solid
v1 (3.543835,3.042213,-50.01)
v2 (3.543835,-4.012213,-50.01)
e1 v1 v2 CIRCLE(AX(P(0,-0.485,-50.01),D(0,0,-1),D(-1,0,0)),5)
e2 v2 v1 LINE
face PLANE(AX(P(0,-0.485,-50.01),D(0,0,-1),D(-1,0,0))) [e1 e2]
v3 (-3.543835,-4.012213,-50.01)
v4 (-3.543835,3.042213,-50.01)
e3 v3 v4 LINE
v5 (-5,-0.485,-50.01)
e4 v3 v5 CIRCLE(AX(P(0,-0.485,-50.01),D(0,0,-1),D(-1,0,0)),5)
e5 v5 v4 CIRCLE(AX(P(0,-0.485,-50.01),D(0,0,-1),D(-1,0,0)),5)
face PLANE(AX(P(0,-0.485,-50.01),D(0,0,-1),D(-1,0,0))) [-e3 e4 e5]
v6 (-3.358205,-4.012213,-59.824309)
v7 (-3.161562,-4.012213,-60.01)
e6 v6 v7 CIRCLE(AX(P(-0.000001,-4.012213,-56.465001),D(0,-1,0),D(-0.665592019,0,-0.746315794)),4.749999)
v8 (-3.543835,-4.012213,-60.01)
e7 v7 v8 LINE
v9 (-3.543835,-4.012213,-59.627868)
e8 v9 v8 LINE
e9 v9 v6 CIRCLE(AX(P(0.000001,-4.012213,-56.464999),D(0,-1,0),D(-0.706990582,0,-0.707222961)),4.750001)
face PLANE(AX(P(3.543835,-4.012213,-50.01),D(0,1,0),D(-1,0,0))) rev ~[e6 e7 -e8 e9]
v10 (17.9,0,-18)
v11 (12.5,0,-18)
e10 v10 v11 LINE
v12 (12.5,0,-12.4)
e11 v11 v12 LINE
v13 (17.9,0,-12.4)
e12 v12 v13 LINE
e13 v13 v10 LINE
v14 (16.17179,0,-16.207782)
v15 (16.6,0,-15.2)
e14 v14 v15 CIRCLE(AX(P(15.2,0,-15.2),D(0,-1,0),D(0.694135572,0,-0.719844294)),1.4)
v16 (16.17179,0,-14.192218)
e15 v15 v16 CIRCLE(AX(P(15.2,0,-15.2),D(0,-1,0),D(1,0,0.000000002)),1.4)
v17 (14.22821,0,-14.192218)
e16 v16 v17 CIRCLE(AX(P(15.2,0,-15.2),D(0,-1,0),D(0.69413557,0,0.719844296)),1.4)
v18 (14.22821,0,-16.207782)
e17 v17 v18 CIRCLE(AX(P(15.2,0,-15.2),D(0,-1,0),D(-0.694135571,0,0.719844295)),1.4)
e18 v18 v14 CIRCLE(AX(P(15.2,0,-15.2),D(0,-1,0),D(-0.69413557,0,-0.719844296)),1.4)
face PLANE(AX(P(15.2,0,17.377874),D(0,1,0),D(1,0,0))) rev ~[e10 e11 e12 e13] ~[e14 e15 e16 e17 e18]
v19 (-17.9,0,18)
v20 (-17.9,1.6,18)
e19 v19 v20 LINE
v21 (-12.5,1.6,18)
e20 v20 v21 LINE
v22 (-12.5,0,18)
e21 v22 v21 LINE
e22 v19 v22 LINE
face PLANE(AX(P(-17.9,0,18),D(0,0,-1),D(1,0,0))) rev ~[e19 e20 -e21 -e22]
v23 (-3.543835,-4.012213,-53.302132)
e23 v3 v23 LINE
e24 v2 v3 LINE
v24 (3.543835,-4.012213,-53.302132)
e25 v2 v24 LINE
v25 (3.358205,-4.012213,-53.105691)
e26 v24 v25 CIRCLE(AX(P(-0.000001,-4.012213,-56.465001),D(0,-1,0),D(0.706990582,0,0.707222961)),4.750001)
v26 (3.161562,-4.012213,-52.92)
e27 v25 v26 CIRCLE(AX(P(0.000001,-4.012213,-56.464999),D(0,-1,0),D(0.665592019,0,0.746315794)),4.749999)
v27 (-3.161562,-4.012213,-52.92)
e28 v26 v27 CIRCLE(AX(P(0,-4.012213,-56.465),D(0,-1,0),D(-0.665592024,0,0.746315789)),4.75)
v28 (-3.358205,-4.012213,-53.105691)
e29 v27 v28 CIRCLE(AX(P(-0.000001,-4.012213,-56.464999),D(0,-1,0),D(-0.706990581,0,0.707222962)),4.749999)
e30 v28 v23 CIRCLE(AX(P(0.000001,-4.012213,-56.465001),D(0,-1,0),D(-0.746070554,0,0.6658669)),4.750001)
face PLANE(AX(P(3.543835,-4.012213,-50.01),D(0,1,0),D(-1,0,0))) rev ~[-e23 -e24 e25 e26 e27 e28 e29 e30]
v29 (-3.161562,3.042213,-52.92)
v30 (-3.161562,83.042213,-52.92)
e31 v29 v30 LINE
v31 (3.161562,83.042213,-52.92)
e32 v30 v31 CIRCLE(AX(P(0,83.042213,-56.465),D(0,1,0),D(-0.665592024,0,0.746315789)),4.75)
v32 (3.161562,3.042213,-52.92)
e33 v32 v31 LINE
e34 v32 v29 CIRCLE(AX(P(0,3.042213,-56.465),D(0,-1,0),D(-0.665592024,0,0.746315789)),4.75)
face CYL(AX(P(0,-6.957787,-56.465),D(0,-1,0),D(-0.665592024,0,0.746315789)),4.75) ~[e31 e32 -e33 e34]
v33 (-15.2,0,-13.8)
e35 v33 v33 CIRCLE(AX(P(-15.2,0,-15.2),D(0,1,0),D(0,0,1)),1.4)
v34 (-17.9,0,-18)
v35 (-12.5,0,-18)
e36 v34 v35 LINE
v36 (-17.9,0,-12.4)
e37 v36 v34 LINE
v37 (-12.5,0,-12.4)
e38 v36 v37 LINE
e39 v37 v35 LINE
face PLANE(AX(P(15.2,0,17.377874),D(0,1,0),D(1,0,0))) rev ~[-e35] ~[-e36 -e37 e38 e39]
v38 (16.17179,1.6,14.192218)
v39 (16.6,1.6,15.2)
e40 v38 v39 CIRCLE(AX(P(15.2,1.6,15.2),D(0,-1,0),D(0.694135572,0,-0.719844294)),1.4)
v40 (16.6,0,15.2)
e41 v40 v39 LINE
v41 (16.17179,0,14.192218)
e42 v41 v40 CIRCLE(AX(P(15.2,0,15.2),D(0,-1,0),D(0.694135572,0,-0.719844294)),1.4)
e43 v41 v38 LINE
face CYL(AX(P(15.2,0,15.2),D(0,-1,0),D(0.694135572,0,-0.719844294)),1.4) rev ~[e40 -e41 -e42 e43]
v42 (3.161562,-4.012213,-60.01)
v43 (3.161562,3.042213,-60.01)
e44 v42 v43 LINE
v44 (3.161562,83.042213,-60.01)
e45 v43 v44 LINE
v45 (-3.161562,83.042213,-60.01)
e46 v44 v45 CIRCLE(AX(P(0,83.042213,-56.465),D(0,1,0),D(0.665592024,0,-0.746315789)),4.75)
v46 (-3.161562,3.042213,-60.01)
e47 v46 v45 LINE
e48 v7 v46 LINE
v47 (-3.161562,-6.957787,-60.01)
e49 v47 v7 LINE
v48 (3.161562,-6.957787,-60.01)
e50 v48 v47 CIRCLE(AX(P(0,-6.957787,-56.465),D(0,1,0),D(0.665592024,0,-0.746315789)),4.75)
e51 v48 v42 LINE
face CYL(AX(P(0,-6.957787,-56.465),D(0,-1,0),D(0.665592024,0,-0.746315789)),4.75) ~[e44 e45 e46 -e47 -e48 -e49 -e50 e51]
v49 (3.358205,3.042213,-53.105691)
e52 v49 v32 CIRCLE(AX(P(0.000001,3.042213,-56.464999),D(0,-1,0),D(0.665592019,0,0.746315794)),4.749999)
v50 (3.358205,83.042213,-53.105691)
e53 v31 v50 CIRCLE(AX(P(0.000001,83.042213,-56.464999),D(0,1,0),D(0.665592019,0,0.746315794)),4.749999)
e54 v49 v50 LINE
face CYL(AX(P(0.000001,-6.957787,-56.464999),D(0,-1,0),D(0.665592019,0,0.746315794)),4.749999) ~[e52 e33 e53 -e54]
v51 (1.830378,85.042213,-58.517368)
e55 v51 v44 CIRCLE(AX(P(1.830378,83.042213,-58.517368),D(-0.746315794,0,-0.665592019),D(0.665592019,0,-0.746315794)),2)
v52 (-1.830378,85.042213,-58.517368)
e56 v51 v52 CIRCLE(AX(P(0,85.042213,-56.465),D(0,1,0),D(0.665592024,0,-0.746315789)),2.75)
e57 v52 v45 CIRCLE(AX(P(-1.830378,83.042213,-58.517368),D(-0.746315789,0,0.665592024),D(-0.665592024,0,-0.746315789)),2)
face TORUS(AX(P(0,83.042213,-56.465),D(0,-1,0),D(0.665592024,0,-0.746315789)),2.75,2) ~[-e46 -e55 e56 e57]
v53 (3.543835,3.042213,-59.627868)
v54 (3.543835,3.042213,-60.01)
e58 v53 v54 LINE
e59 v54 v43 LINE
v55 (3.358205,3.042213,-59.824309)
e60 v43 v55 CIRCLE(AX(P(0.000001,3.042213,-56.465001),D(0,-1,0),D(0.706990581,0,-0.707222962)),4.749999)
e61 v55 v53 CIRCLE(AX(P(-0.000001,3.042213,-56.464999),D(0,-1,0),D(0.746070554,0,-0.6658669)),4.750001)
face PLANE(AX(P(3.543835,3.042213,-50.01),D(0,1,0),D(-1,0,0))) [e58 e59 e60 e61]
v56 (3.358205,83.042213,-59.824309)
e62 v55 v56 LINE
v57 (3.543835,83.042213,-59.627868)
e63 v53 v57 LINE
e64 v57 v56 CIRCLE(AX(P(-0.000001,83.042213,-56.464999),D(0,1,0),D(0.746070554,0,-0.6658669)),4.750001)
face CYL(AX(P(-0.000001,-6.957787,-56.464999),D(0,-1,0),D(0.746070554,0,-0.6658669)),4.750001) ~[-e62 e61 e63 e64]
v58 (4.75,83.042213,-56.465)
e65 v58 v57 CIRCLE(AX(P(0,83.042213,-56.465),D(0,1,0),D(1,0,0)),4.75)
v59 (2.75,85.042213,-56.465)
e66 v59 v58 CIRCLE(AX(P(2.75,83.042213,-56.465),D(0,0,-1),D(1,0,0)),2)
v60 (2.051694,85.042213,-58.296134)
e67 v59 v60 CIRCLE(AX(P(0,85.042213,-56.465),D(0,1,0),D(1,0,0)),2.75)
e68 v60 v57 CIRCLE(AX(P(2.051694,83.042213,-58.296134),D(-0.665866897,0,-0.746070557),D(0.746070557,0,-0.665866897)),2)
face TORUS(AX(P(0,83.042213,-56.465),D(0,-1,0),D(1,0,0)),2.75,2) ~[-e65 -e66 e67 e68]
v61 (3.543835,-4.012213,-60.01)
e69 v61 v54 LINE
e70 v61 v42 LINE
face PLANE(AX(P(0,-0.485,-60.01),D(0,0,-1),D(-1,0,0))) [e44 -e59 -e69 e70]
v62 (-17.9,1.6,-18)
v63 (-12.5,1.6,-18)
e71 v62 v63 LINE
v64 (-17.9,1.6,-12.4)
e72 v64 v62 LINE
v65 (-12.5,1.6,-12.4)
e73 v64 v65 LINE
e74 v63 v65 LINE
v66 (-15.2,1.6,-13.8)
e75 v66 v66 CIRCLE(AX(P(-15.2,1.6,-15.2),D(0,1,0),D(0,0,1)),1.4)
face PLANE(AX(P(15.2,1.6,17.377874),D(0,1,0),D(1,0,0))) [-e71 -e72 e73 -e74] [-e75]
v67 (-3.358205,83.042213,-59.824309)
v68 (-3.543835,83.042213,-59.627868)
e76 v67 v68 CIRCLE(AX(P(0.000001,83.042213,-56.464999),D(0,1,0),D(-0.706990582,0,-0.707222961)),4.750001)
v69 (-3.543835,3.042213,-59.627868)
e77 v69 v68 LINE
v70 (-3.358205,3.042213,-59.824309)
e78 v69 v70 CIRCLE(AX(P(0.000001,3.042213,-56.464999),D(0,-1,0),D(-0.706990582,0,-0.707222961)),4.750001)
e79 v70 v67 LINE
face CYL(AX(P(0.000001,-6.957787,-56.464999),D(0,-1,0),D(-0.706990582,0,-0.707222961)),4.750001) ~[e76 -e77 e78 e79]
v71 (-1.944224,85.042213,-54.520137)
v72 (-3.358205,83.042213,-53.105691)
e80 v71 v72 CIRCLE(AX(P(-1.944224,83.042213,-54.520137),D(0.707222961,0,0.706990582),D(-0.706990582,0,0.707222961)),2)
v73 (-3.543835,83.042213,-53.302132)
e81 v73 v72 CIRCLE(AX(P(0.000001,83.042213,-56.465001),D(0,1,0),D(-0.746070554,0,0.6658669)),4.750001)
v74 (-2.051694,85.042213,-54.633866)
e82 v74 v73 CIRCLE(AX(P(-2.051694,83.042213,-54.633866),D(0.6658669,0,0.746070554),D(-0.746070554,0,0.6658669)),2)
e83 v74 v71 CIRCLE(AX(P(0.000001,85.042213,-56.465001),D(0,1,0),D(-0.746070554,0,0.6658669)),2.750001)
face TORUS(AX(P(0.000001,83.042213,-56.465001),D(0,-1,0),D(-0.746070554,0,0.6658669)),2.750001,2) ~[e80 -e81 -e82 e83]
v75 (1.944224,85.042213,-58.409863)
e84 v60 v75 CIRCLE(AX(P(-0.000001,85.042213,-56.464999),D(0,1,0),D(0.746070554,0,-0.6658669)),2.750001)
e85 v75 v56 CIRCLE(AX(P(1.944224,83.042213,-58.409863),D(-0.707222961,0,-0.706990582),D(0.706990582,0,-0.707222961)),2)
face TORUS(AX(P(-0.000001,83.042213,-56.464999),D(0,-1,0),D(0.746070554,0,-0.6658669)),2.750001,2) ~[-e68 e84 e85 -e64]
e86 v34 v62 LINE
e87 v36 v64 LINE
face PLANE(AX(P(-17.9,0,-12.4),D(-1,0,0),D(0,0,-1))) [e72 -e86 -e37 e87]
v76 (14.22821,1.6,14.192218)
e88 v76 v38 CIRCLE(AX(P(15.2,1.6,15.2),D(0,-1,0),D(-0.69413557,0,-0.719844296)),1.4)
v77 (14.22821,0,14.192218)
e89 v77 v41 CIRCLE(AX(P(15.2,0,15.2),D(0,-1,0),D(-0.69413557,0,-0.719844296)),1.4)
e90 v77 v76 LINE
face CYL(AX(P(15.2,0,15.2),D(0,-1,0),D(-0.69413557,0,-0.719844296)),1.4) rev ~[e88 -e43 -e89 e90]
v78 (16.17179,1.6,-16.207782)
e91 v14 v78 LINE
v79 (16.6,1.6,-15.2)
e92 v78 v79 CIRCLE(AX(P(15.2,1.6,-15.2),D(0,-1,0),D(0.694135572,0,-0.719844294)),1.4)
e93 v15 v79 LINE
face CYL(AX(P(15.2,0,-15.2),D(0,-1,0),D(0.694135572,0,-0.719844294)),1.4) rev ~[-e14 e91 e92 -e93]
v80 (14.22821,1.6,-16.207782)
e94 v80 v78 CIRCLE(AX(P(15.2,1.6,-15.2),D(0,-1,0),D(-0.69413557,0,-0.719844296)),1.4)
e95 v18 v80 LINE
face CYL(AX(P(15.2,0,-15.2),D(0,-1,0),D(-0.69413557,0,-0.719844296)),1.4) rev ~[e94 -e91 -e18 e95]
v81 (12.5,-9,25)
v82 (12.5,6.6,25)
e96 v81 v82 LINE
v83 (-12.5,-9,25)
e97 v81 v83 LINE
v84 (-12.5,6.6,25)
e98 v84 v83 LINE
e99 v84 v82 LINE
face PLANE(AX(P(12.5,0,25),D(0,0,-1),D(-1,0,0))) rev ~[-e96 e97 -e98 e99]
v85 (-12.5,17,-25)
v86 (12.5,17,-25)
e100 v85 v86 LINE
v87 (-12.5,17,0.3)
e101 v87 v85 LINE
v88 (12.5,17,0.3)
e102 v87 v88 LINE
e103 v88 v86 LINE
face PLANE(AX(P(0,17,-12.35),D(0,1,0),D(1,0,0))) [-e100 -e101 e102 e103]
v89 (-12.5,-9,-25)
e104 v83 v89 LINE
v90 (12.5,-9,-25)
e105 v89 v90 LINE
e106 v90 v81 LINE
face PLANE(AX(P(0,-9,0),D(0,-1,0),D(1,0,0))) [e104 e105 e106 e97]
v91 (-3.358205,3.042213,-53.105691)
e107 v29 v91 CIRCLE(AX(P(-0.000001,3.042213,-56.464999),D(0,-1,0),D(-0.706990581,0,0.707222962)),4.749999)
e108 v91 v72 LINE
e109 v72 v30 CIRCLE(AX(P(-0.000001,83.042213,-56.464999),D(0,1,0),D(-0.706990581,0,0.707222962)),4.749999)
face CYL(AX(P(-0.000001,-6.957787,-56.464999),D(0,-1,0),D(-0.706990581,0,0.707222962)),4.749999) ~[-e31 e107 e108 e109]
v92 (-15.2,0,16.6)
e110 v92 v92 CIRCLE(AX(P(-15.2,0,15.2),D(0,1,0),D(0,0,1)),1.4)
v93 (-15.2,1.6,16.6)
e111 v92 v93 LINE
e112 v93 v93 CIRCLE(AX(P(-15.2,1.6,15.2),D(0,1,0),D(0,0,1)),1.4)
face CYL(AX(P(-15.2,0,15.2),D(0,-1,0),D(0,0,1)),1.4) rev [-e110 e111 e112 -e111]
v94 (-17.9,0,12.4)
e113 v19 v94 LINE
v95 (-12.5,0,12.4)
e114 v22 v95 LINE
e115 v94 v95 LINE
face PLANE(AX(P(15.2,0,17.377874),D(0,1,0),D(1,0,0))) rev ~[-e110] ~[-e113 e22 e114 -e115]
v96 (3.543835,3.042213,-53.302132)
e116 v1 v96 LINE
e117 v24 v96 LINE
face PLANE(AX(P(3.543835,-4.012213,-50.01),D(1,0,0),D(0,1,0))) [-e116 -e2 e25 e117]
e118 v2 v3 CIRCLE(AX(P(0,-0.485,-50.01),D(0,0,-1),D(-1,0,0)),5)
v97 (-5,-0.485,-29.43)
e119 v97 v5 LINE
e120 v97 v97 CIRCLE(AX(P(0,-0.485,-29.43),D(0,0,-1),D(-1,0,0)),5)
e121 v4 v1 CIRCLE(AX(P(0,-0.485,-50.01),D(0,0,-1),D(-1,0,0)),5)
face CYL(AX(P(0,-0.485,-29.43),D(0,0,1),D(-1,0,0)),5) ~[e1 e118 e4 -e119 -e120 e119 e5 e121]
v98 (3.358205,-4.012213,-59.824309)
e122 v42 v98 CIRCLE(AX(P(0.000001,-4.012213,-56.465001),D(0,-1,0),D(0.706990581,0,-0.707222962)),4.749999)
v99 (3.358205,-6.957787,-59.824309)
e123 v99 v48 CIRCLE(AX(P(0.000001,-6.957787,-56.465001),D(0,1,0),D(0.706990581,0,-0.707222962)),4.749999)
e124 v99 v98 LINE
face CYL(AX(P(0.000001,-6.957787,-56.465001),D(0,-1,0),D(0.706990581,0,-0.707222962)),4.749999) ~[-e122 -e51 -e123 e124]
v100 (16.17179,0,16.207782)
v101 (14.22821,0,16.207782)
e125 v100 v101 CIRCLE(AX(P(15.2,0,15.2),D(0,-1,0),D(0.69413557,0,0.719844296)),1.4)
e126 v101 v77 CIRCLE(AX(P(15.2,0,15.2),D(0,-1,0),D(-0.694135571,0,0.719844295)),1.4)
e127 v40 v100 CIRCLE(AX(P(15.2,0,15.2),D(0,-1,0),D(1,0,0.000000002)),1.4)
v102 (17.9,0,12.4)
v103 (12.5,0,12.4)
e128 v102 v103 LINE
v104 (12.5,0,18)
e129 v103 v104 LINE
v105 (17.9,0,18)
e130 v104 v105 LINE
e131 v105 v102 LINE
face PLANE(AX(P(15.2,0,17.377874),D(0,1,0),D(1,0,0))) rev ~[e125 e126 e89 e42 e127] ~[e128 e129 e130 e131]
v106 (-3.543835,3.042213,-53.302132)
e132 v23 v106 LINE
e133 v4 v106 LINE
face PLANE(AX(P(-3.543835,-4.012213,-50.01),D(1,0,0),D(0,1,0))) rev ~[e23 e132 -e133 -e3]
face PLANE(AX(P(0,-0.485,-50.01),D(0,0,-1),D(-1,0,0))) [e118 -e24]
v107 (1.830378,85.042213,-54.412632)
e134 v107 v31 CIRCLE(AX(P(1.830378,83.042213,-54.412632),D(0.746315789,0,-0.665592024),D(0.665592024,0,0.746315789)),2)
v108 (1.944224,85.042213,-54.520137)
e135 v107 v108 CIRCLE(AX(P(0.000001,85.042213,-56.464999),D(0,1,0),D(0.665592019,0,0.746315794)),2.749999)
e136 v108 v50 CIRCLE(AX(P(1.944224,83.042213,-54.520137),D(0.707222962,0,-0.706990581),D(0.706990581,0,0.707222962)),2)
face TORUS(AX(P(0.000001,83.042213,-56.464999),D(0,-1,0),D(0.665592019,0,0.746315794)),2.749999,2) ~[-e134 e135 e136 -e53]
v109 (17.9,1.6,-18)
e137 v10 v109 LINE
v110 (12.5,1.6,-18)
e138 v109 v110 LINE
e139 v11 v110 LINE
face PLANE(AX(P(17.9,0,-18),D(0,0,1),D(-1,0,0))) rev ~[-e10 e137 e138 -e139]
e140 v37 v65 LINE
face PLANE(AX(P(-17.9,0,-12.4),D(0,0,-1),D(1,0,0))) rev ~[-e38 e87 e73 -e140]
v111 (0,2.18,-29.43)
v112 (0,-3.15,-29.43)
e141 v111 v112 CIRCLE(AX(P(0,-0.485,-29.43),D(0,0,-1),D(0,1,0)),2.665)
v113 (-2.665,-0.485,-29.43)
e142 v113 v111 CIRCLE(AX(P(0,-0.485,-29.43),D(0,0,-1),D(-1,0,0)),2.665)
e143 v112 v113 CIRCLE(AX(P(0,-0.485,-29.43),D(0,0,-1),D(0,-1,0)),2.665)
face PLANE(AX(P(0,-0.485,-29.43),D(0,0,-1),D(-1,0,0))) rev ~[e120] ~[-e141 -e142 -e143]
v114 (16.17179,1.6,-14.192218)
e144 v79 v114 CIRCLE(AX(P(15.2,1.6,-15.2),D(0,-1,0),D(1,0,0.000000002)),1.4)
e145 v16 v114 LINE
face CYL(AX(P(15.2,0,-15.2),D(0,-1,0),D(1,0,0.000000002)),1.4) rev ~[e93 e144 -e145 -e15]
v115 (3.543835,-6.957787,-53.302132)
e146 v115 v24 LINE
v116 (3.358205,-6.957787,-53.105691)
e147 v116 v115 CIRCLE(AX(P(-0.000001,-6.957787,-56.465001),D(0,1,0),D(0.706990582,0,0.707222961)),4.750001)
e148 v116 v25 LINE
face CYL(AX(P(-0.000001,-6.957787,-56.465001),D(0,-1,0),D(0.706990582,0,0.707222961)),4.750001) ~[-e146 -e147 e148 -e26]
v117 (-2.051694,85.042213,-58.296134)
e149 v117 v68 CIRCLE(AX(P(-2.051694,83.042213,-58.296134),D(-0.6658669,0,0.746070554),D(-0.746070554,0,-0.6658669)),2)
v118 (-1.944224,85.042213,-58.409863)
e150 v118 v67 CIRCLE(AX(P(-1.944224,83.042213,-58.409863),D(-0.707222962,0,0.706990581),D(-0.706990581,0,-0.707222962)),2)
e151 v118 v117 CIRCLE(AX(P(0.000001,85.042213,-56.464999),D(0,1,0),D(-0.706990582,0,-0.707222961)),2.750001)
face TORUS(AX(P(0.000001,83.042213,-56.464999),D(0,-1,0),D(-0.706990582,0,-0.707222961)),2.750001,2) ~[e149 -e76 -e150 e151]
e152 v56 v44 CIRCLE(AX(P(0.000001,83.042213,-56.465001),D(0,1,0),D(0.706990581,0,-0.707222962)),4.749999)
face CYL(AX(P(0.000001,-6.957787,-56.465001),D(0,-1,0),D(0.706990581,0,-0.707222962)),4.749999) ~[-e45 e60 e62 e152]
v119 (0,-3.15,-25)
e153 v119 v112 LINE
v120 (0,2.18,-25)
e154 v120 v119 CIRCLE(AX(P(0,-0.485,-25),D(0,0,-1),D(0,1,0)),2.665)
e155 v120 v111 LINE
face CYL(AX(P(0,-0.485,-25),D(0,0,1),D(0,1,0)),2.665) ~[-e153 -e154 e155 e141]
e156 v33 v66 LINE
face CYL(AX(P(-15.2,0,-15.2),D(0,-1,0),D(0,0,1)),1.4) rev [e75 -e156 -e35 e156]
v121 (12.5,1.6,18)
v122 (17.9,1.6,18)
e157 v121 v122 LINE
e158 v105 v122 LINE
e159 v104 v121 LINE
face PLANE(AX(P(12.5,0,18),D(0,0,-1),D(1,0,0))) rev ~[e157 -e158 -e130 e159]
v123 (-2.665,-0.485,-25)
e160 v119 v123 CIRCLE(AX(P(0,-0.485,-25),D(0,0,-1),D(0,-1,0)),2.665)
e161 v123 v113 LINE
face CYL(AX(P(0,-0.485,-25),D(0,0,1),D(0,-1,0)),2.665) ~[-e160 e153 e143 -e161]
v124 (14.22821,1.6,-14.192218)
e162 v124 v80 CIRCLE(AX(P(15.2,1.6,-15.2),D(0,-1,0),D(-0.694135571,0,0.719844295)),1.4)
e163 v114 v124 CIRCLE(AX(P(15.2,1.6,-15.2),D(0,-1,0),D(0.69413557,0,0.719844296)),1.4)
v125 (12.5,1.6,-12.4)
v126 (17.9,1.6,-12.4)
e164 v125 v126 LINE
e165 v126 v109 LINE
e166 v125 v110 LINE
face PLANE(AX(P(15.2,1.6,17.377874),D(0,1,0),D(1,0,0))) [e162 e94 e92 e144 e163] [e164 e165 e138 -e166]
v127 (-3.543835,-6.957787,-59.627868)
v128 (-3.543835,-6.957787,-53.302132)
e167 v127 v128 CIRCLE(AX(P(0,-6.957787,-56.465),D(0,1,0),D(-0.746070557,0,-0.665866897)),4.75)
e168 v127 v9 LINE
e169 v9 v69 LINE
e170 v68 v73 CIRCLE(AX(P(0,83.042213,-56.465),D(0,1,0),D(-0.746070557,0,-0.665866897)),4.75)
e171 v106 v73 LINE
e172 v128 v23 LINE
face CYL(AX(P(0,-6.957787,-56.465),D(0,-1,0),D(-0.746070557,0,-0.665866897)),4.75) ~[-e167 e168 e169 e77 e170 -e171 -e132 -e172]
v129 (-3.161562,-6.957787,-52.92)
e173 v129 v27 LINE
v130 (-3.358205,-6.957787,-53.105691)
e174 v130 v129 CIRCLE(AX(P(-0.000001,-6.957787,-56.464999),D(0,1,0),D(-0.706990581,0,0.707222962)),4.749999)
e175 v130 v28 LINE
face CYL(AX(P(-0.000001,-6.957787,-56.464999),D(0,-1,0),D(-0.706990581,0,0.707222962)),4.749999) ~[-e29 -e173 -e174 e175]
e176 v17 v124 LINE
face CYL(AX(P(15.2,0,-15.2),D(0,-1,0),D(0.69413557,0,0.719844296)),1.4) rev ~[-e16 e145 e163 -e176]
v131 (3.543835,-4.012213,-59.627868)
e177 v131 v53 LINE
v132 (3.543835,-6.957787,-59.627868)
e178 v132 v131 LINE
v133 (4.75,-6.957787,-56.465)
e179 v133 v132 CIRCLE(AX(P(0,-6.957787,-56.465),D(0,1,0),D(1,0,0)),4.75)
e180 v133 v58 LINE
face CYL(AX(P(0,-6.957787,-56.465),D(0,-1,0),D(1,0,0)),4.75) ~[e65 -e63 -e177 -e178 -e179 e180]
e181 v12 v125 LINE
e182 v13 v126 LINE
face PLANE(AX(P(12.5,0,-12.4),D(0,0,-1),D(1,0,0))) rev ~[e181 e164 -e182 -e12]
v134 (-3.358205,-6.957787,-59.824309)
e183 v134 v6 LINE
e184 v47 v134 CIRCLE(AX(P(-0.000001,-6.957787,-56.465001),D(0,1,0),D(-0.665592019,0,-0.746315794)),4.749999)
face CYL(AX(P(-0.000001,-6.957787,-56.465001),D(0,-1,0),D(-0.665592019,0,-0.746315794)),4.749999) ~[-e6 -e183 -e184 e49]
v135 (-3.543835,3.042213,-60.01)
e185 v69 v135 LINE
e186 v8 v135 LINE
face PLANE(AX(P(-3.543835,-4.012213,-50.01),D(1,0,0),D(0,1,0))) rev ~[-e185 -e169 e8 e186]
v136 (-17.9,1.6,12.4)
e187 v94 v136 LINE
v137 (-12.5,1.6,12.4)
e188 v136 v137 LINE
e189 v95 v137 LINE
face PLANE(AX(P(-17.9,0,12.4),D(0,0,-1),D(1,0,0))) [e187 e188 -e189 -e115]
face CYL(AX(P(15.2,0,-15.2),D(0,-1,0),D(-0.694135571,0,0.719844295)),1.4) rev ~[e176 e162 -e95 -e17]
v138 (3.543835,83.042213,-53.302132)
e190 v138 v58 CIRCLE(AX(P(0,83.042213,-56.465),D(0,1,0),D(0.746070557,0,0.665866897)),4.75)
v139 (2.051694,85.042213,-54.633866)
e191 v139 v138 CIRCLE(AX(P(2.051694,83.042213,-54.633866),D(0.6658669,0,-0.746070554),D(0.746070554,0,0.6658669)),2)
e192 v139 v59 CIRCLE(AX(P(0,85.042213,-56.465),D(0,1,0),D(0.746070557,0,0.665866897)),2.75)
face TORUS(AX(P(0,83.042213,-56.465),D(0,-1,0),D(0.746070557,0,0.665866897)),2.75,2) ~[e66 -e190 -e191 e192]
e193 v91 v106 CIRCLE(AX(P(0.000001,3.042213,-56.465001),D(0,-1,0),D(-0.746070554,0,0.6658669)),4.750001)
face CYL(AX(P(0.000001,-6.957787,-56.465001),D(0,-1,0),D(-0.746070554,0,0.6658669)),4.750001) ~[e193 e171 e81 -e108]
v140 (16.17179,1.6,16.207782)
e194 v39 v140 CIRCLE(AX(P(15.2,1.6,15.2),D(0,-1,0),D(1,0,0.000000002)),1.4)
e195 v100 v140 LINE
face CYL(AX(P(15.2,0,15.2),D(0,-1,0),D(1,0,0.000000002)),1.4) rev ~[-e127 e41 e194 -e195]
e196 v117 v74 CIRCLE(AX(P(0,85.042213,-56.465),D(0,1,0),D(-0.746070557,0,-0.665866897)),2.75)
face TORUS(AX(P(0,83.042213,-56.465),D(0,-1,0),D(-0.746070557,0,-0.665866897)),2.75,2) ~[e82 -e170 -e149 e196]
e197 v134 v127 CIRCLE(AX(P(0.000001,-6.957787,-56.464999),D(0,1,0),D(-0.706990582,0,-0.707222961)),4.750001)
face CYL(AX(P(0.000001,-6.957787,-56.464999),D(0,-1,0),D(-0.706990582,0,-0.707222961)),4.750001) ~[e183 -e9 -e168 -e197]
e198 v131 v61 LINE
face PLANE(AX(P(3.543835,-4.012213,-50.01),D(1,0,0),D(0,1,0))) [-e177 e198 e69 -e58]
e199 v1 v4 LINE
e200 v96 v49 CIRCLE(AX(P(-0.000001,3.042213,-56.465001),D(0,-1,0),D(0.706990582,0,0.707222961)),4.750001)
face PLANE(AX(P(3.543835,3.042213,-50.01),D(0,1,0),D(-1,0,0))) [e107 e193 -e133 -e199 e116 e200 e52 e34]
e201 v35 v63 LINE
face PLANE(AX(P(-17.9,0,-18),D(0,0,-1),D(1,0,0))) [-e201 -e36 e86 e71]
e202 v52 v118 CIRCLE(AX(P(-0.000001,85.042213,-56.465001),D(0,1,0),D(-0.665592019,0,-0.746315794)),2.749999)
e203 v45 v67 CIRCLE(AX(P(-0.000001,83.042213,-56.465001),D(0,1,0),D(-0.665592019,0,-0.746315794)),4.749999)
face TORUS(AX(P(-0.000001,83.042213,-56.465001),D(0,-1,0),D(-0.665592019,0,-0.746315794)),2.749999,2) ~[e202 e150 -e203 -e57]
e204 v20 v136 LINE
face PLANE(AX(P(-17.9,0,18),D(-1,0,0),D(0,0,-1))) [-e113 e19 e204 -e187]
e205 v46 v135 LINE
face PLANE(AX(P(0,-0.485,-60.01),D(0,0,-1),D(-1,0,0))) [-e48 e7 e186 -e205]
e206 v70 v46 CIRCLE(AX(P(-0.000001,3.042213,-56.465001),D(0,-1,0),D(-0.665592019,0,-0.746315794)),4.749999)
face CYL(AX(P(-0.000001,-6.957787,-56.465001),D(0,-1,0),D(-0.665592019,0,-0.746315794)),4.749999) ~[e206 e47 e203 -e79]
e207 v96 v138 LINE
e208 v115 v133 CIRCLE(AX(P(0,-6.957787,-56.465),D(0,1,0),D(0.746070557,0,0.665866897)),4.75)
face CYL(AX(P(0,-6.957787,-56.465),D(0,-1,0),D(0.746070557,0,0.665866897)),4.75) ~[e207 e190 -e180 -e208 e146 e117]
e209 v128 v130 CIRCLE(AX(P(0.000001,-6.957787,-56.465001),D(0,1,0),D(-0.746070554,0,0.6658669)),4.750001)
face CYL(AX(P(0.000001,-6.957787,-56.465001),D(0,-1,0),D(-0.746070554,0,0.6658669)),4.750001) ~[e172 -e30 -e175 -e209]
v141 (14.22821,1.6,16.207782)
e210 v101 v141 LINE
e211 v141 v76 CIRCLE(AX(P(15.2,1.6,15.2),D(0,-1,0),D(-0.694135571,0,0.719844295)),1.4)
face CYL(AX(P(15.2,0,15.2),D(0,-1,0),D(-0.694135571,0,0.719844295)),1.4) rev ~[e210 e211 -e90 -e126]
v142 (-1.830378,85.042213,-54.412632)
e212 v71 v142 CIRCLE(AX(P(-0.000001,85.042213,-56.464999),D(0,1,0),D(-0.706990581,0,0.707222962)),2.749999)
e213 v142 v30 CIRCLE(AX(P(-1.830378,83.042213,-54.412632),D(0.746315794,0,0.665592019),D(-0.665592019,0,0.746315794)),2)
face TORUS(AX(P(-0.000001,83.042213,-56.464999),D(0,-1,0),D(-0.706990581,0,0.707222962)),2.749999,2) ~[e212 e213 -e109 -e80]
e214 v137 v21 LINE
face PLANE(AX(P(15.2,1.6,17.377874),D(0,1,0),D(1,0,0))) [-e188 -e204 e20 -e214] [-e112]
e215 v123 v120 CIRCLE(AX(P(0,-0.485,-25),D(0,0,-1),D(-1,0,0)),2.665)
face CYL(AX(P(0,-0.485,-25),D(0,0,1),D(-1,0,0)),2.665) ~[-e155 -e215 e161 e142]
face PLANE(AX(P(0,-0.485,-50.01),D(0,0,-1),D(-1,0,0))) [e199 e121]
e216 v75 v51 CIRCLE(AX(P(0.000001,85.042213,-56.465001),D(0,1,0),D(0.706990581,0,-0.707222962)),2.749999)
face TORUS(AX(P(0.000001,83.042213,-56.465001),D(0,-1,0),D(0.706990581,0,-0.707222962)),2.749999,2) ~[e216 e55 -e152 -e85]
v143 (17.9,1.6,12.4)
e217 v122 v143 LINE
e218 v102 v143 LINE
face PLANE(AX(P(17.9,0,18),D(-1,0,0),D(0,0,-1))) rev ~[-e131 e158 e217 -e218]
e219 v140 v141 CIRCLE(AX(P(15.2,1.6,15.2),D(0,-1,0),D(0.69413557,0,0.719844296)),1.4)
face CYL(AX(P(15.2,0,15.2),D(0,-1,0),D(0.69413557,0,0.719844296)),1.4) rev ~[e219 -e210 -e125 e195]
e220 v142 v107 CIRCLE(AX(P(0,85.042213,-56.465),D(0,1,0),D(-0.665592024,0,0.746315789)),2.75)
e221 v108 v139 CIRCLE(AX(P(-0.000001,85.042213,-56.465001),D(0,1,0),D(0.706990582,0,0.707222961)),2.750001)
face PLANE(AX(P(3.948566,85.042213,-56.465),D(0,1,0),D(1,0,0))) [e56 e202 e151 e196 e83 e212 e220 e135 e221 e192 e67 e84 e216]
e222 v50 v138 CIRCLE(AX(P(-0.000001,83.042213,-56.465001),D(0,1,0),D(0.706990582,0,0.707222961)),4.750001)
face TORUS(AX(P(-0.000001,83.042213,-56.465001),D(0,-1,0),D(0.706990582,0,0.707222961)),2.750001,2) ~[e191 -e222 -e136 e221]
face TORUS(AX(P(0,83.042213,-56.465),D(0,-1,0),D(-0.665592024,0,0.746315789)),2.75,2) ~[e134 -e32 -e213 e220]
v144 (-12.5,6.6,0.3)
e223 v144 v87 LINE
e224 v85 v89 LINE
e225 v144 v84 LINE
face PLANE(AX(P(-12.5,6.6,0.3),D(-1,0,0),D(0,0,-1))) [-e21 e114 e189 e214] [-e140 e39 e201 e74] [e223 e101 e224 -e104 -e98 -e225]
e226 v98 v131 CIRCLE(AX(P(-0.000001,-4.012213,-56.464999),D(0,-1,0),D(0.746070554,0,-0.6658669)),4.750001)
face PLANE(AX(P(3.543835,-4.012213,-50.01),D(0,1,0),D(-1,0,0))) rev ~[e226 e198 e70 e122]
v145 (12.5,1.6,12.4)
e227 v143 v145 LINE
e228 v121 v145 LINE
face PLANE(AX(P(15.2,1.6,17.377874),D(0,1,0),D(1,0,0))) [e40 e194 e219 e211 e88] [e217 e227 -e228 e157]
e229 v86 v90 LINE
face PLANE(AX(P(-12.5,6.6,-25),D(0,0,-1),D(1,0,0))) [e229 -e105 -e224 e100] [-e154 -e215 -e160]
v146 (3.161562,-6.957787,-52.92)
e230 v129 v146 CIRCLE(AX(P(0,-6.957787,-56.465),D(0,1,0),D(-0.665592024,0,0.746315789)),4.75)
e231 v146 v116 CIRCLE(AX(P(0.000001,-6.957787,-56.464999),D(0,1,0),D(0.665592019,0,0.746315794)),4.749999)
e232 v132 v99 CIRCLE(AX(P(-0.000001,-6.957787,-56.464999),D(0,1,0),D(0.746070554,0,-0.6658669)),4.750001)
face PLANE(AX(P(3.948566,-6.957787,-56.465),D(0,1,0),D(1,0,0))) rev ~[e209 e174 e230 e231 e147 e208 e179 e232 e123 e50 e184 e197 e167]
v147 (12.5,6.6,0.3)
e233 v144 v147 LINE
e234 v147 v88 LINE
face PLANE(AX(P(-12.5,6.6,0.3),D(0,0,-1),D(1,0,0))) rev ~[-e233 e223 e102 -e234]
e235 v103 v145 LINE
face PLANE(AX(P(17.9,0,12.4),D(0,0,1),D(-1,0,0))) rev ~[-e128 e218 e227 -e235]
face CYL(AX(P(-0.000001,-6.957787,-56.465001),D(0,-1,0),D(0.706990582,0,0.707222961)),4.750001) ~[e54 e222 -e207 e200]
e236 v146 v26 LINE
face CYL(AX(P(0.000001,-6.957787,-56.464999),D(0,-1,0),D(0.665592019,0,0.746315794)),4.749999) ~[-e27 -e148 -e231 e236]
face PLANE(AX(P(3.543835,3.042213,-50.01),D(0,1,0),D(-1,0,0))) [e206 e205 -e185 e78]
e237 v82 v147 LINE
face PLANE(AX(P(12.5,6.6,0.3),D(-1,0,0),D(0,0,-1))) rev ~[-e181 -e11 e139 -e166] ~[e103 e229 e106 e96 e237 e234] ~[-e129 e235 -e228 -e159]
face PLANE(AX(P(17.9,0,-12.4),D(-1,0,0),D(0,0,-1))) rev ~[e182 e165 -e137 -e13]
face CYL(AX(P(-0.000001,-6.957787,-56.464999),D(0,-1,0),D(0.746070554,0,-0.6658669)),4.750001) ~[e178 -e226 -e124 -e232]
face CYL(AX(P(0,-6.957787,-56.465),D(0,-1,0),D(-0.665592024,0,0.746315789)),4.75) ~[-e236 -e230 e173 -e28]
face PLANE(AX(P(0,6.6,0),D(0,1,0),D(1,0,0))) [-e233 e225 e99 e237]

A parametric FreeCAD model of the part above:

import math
import FreeCAD as App
import Part
import Sketcher

V = App.Vector


def edges_at(feature, points):
    """Names of the edges that pass closest to the given points."""
    edges = feature.Shape.Edges
    near = lambda p: min(range(len(edges)), key=lambda i: edges[i].distToShape(Part.Vertex(*p))[0])
    return sorted({f"Edge{near(p) + 1}" for p in points})


def add_polygon(sketch, points):
    """Adds a closed chain of lines whose ends are joined by coincident constraints."""
    first, n = sketch.GeometryCount, len(points)
    for a, b in zip(points, points[1:] + points[:1]):
        sketch.addGeometry(Part.LineSegment(App.Vector(*a, 0), App.Vector(*b, 0)), False)
    for i in range(n):
        sketch.addConstraint(Sketcher.Constraint("Coincident", first + i, 2, first + (i + 1) % n, 1))

doc = App.newDocument("Part")
body = doc.addObject("PartDesign::Body", "Body")

# Sketch on XZ plane
sketch1 = body.newObject("Sketcher::SketchObject", "Sketch")
sketch1.AttachmentSupport = (doc.getObject("XZ_Plane"), [""])
sketch1.MapMode = "FlatFace"
add_polygon(sketch1, [(-12.5, -25), (-12.5, -18), (-17.9, -18), (-17.9, -12.4), (-12.5, -12.4), (-12.5, 12.4), (-17.9, 12.4), (-17.9, 18), (-12.5, 18), (-12.5, 25), (12.5, 25), (12.5, 18), (17.9, 18), (17.9, 12.4), (12.5, 12.4), (12.5, -12.4), (17.9, -12.4), (17.9, -18), (12.5, -18), (12.5, -25)])  # lines 0-19
sketch1.addGeometry(Part.Circle(V(-15.2, -15.2, 0), V(0, 0, 1), 1.4), False)  # 20
sketch1.addGeometry(Part.Circle(V(-15.2, 15.2, 0), V(0, 0, 1), 1.4), False)  # 21
sketch1.addGeometry(Part.ArcOfCircle(Part.Circle(V(15.2, 15.2, 0), V(0, 0, 1), 1.4), math.radians(134), math.radians(226)), False)  # 22
sketch1.addGeometry(Part.ArcOfCircle(Part.Circle(V(15.2, 15.2, 0), V(0, 0, 1), 1.4), math.radians(-134), math.radians(-46)), False)  # 23
sketch1.addGeometry(Part.ArcOfCircle(Part.Circle(V(15.2, 15.2, 0), V(0, 0, 1), 1.4), math.radians(-46), math.radians(0)), False)  # 24
sketch1.addGeometry(Part.ArcOfCircle(Part.Circle(V(15.2, 15.2, 0), V(0, 0, 1), 1.4), math.radians(0), math.radians(46)), False)  # 25
sketch1.addGeometry(Part.ArcOfCircle(Part.Circle(V(15.2, 15.2, 0), V(0, 0, 1), 1.4), math.radians(46), math.radians(134)), False)  # 26
sketch1.addGeometry(Part.ArcOfCircle(Part.Circle(V(15.2, -15.2, 0), V(0, 0, 1), 1.4), math.radians(134), math.radians(226)), False)  # 27
sketch1.addGeometry(Part.ArcOfCircle(Part.Circle(V(15.2, -15.2, 0), V(0, 0, 1), 1.4), math.radians(-134), math.radians(-46)), False)  # 28
sketch1.addGeometry(Part.ArcOfCircle(Part.Circle(V(15.2, -15.2, 0), V(0, 0, 1), 1.4), math.radians(-46), math.radians(0)), False)  # 29
sketch1.addGeometry(Part.ArcOfCircle(Part.Circle(V(15.2, -15.2, 0), V(0, 0, 1), 1.4), math.radians(0), math.radians(46)), False)  # 30
sketch1.addGeometry(Part.ArcOfCircle(Part.Circle(V(15.2, -15.2, 0), V(0, 0, 1), 1.4), math.radians(46), math.radians(134)), False)  # 31
sketch1.addConstraint(Sketcher.Constraint("Tangent", 22, 2, 23, 1))
sketch1.addConstraint(Sketcher.Constraint("Tangent", 23, 2, 24, 1))
sketch1.addConstraint(Sketcher.Constraint("Tangent", 24, 2, 25, 1))
sketch1.addConstraint(Sketcher.Constraint("Tangent", 25, 2, 26, 1))
sketch1.addConstraint(Sketcher.Constraint("Tangent", 26, 2, 22, 1))
sketch1.addConstraint(Sketcher.Constraint("Tangent", 27, 2, 28, 1))
sketch1.addConstraint(Sketcher.Constraint("Tangent", 28, 2, 29, 1))
sketch1.addConstraint(Sketcher.Constraint("Tangent", 29, 2, 30, 1))
sketch1.addConstraint(Sketcher.Constraint("Tangent", 30, 2, 31, 1))
sketch1.addConstraint(Sketcher.Constraint("Tangent", 31, 2, 27, 1))
sketch1.addConstraint(Sketcher.Constraint("Vertical", 0))
sketch1.addConstraint(Sketcher.Constraint("Horizontal", 1))
sketch1.addConstraint(Sketcher.Constraint("Vertical", 2))
sketch1.addConstraint(Sketcher.Constraint("Horizontal", 3))
sketch1.addConstraint(Sketcher.Constraint("Vertical", 4))
sketch1.addConstraint(Sketcher.Constraint("Horizontal", 5))
sketch1.addConstraint(Sketcher.Constraint("Vertical", 6))
sketch1.addConstraint(Sketcher.Constraint("Horizontal", 7))
sketch1.addConstraint(Sketcher.Constraint("Vertical", 8))
sketch1.addConstraint(Sketcher.Constraint("Horizontal", 9))
sketch1.addConstraint(Sketcher.Constraint("Vertical", 10))
sketch1.addConstraint(Sketcher.Constraint("Horizontal", 11))
sketch1.addConstraint(Sketcher.Constraint("Vertical", 12))
sketch1.addConstraint(Sketcher.Constraint("Horizontal", 13))
sketch1.addConstraint(Sketcher.Constraint("Vertical", 14))
sketch1.addConstraint(Sketcher.Constraint("Horizontal", 15))
sketch1.addConstraint(Sketcher.Constraint("Vertical", 16))
sketch1.addConstraint(Sketcher.Constraint("Horizontal", 17))
sketch1.addConstraint(Sketcher.Constraint("Vertical", 18))
sketch1.addConstraint(Sketcher.Constraint("Horizontal", 19))
sketch1.addConstraint(Sketcher.Constraint("Coincident", 24, 3, 22, 3))
sketch1.addConstraint(Sketcher.Constraint("Coincident", 29, 3, 27, 3))
sketch1.addConstraint(Sketcher.Constraint("Equal", 20, 21))
sketch1.addConstraint(Sketcher.Constraint("Equal", 21, 22))
sketch1.addConstraint(Sketcher.Constraint("Equal", 26, 27))
sketch1.addConstraint(Sketcher.Constraint("Symmetric", 20, 3, 22, 3, -1, 1))
sketch1.addConstraint(Sketcher.Constraint("Symmetric", 21, 3, 27, 3, -1, 1))
sketch1.addConstraint(Sketcher.Constraint("Symmetric", 0, 2, 10, 2, -1, 1))
sketch1.addConstraint(Sketcher.Constraint("Symmetric", 2, 2, 12, 2, -1, 1))
sketch1.addConstraint(Sketcher.Constraint("Symmetric", 4, 2, 14, 2, -1, 1))
sketch1.addConstraint(Sketcher.Constraint("Symmetric", 6, 2, 16, 2, -1, 1))
sketch1.addConstraint(Sketcher.Constraint("Symmetric", 8, 2, 18, 2, -1, 1))
sketch1.addConstraint(Sketcher.Constraint("Symmetric", 21, 3, 22, 3, -2))
sketch1.addConstraint(Sketcher.Constraint("Symmetric", 7, 2, 10, 2, -2))
sketch1.addConstraint(Sketcher.Constraint("Symmetric", 5, 2, 12, 2, -2))
sketch1.addConstraint(Sketcher.Constraint("Horizontal", 22, 2, 23, 2))
sketch1.addConstraint(Sketcher.Constraint("Horizontal", 26, 3, 24, 2))
sketch1.addConstraint(Sketcher.Constraint("Horizontal", 25, 2, 26, 2))
sketch1.addConstraint(Sketcher.Constraint("Horizontal", 27, 2, 28, 2))
sketch1.addConstraint(Sketcher.Constraint("Horizontal", 31, 3, 29, 2))
sketch1.addConstraint(Sketcher.Constraint("Horizontal", 30, 2, 31, 2))
sketch1.addConstraint(Sketcher.Constraint("Vertical", 0, 2, 3, 2))
sketch1.addConstraint(Sketcher.Constraint("Vertical", 23, 2, 25, 2))
sketch1.addConstraint(Sketcher.Constraint("Vertical", 26, 2, 27, 2))
sketch1.addConstraint(Sketcher.Constraint("Vertical", 28, 2, 30, 2))
sketch1.addConstraint(Sketcher.Constraint("Diameter", 20, 2.8))
sketch1.addConstraint(Sketcher.Constraint("DistanceX", 9, 1, 9, 2, 25.0))
sketch1.addConstraint(Sketcher.Constraint("DistanceY", 0, 1, 0, 2, 7.0))
sketch1.addConstraint(Sketcher.Constraint("DistanceX", 1, 2, 1, 1, 5.4))
sketch1.addConstraint(Sketcher.Constraint("DistanceY", 2, 1, 2, 2, 5.6))
sketch1.addConstraint(Sketcher.Constraint("DistanceY", 4, 1, 4, 2, 24.8))
sketch1.addConstraint(Sketcher.Constraint("DistanceX", 20, 3, -1, 1, 15.2))
sketch1.addConstraint(Sketcher.Constraint("DistanceY", 20, 3, -1, 1, 15.2))
sketch1.addConstraint(Sketcher.Constraint("DistanceX", -1, 1, 22, 2, 14.22821))
pad1 = body.newObject("PartDesign::Pad", "Pad")
pad1.Profile = sketch1
pad1.Length = 1.6
pad1.Reversed = True

# Sketch on XZ plane
sketch2 = body.newObject("Sketcher::SketchObject", "Sketch001")
sketch2.AttachmentSupport = (doc.getObject("XZ_Plane"), [""])
sketch2.MapMode = "FlatFace"
sketch2.AttachmentOffset = App.Placement(V(0, 0, -1.6), App.Rotation())
add_polygon(sketch2, [(12, -25), (-12, -25), (-12, 25), (12, 25)])  # lines 0-3
sketch2.addConstraint(Sketcher.Constraint("Horizontal", 0))
sketch2.addConstraint(Sketcher.Constraint("Vertical", 1))
sketch2.addConstraint(Sketcher.Constraint("Horizontal", 2))
sketch2.addConstraint(Sketcher.Constraint("Vertical", 3))
sketch2.addConstraint(Sketcher.Constraint("Symmetric", 0, 2, 2, 2, -1, 1))
sketch2.addConstraint(Sketcher.Constraint("DistanceX", 0, 2, 0, 1, 25.0))
sketch2.addConstraint(Sketcher.Constraint("DistanceY", 1, 1, 1, 2, 50.0))
pad2 = body.newObject("PartDesign::Pad", "Pad001")
pad2.Profile = sketch2
pad2.Length = 5
pad2.Reversed = True

# Sketch on XZ plane
sketch3 = body.newObject("Sketcher::SketchObject", "Sketch002")
sketch3.AttachmentSupport = (doc.getObject("XZ_Plane"), [""])
sketch3.MapMode = "FlatFace"
add_polygon(sketch3, [(12, 25), (-12, 25), (-12, -25), (12, -25)])  # lines 0-3
sketch3.addConstraint(Sketcher.Constraint("Horizontal", 0))
sketch3.addConstraint(Sketcher.Constraint("Vertical", 1))
sketch3.addConstraint(Sketcher.Constraint("Horizontal", 2))
sketch3.addConstraint(Sketcher.Constraint("Vertical", 3))
sketch3.addConstraint(Sketcher.Constraint("Symmetric", 0, 2, 2, 2, -1, 1))
sketch3.addConstraint(Sketcher.Constraint("DistanceX", 0, 2, 0, 1, 25.0))
sketch3.addConstraint(Sketcher.Constraint("DistanceY", 1, 2, 1, 1, 50.0))
pad3 = body.newObject("PartDesign::Pad", "Pad002")
pad3.Profile = sketch3
pad3.Length = 9

# Sketch on XZ plane
sketch4 = body.newObject("Sketcher::SketchObject", "Sketch003")
sketch4.AttachmentSupport = (doc.getObject("XZ_Plane"), [""])
sketch4.MapMode = "FlatFace"
sketch4.AttachmentOffset = App.Placement(V(0, 0, -6.6), App.Rotation())
add_polygon(sketch4, [(-12, -25), (-12, 0), (12, 0), (12, -25)])  # lines 0-3
sketch4.addConstraint(Sketcher.Constraint("Vertical", 0))
sketch4.addConstraint(Sketcher.Constraint("Horizontal", 1))
sketch4.addConstraint(Sketcher.Constraint("Vertical", 2))
sketch4.addConstraint(Sketcher.Constraint("Horizontal", 3))
sketch4.addConstraint(Sketcher.Constraint("DistanceX", 1, 1, 1, 2, 25.0))
sketch4.addConstraint(Sketcher.Constraint("DistanceY", 0, 1, 0, 2, 25.3))
sketch4.addConstraint(Sketcher.Constraint("DistanceY", 2, 2, -1, 1, 25.0))
sketch4.addConstraint(Sketcher.Constraint("DistanceX", 0, 2, -1, 1, 12.5))
pad4 = body.newObject("PartDesign::Pad", "Pad003")
pad4.Profile = sketch4
pad4.Length = 10.4
pad4.Reversed = True

# Sketch on XY plane
sketch5 = body.newObject("Sketcher::SketchObject", "Sketch004")
sketch5.AttachmentSupport = (doc.getObject("XY_Plane"), [""])
sketch5.MapMode = "FlatFace"
sketch5.AttachmentOffset = App.Placement(V(0, 0, -25), App.Rotation())
sketch5.addGeometry(Part.ArcOfCircle(Part.Circle(V(0, -0.5, 0), V(0, 0, 1), 2.7), math.radians(-90), math.radians(90)), False)
sketch5.addGeometry(Part.ArcOfCircle(Part.Circle(V(0, -0.5, 0), V(0, 0, 1), 2.7), math.radians(180), math.radians(270)), False)
sketch5.addGeometry(Part.ArcOfCircle(Part.Circle(V(0, -0.5, 0), V(0, 0, 1), 2.7), math.radians(90), math.radians(180)), False)
sketch5.addConstraint(Sketcher.Constraint("Tangent", 0, 1, 1, 2))
sketch5.addConstraint(Sketcher.Constraint("Tangent", 1, 1, 2, 2))
sketch5.addConstraint(Sketcher.Constraint("Tangent", 2, 1, 0, 2))
sketch5.addConstraint(Sketcher.Constraint("PointOnObject", 0, 3, -2))
sketch5.addConstraint(Sketcher.Constraint("PointOnObject", 0, 1, -2))
sketch5.addConstraint(Sketcher.Constraint("PointOnObject", 2, 1, -2))
sketch5.addConstraint(Sketcher.Constraint("Horizontal", 2, 3, 1, 1))
sketch5.addConstraint(Sketcher.Constraint("Radius", 0, 2.665))
sketch5.addConstraint(Sketcher.Constraint("DistanceY", 0, 1, -1, 1, 3.15))
pad5 = body.newObject("PartDesign::Pad", "Pad004")
pad5.Profile = sketch5
pad5.Length = 4.43
pad5.Reversed = True

# Sketch on XY plane
sketch6 = body.newObject("Sketcher::SketchObject", "Sketch005")
sketch6.AttachmentSupport = (doc.getObject("XY_Plane"), [""])
sketch6.MapMode = "FlatFace"
sketch6.AttachmentOffset = App.Placement(V(0, 0, -29.43), App.Rotation())
sketch6.addGeometry(Part.Circle(V(0, 0, 0), V(0, 0, 1), 5), False)
sketch6.addConstraint(Sketcher.Constraint("PointOnObject", 0, 3, -2))
sketch6.addConstraint(Sketcher.Constraint("Diameter", 0, 10.0))
sketch6.addConstraint(Sketcher.Constraint("DistanceY", 0, 3, -1, 1, 0.485))
pad6 = body.newObject("PartDesign::Pad", "Pad005")
pad6.Profile = sketch6
pad6.Length = 20.58
pad6.Reversed = True

# Sketch on XY plane
sketch7 = body.newObject("Sketcher::SketchObject", "Sketch006")
sketch7.AttachmentSupport = (doc.getObject("XY_Plane"), [""])
sketch7.MapMode = "FlatFace"
sketch7.AttachmentOffset = App.Placement(V(0, 0, -50.01), App.Rotation())
add_polygon(sketch7, [(4, 3), (4, -4), (-4, -4), (-4, 3)])  # lines 0-3
sketch7.addConstraint(Sketcher.Constraint("Vertical", 0))
sketch7.addConstraint(Sketcher.Constraint("Horizontal", 1))
sketch7.addConstraint(Sketcher.Constraint("Vertical", 2))
sketch7.addConstraint(Sketcher.Constraint("Horizontal", 3))
sketch7.addConstraint(Sketcher.Constraint("DistanceX", 1, 2, 1, 1, 7.08767))
sketch7.addConstraint(Sketcher.Constraint("DistanceY", 0, 2, 0, 1, 7.054426))
sketch7.addConstraint(Sketcher.Constraint("DistanceX", -1, 1, 0, 2, 3.543835))
sketch7.addConstraint(Sketcher.Constraint("DistanceY", 0, 2, -1, 1, 4.012213))
pad7 = body.newObject("PartDesign::Pad", "Pad006")
pad7.Profile = sketch7
pad7.Length = 10
pad7.Reversed = True

# Sketch on XZ plane
sketch8 = body.newObject("Sketcher::SketchObject", "Sketch007")
sketch8.AttachmentSupport = (doc.getObject("XZ_Plane"), [""])
sketch8.MapMode = "FlatFace"
sketch8.AttachmentOffset = App.Placement(V(0, 0, -3.042213), App.Rotation())
sketch8.addGeometry(Part.ArcOfCircle(Part.Circle(V(0, -56.47, 0), V(0, 0, 1), 4.75), math.radians(0), math.radians(42)), False)
sketch8.addGeometry(Part.ArcOfCircle(Part.Circle(V(0, -56.47, 0), V(0, 0, 1), 4.75), math.radians(-42), math.radians(0)), False)
sketch8.addGeometry(Part.ArcOfCircle(Part.Circle(V(0, -56.46, 0), V(0, 0, 1), 4.75), math.radians(-45.01), math.radians(-41.75)), False)
sketch8.addGeometry(Part.ArcOfCircle(Part.Circle(V(0, -56.47, 0), V(0, 0, 1), 4.75), math.radians(-48.27), math.radians(-45.01)), False)
sketch8.addGeometry(Part.ArcOfCircle(Part.Circle(V(0, -56.47, 0), V(0, 0, 1), 4.75), math.radians(-132), math.radians(-48)), False)
sketch8.addGeometry(Part.ArcOfCircle(Part.Circle(V(0, -56.47, 0), V(0, 0, 1), 4.75), math.radians(-134.99), math.radians(-131.73)), False)
sketch8.addGeometry(Part.ArcOfCircle(Part.Circle(V(0, -56.46, 0), V(0, 0, 1), 4.75), math.radians(-138.25), math.radians(-134.99)), False)
sketch8.addGeometry(Part.ArcOfCircle(Part.Circle(V(0, -56.47, 0), V(0, 0, 1), 4.75), math.radians(138), math.radians(222)), False)
sketch8.addGeometry(Part.ArcOfCircle(Part.Circle(V(0, -56.47, 0), V(0, 0, 1), 4.75), math.radians(134.99), math.radians(138.25)), False)
sketch8.addGeometry(Part.ArcOfCircle(Part.Circle(V(0, -56.46, 0), V(0, 0, 1), 4.75), math.radians(131.73), math.radians(134.99)), False)
sketch8.addGeometry(Part.ArcOfCircle(Part.Circle(V(0, -56.47, 0), V(0, 0, 1), 4.75), math.radians(48), math.radians(132)), False)
sketch8.addGeometry(Part.ArcOfCircle(Part.Circle(V(0, -56.46, 0), V(0, 0, 1), 4.75), math.radians(45.01), math.radians(48.27)), False)
sketch8.addGeometry(Part.ArcOfCircle(Part.Circle(V(0, -56.47, 0), V(0, 0, 1), 4.75), math.radians(41.75), math.radians(45.01)), False)
sketch8.addConstraint(Sketcher.Constraint("Tangent", 0, 1, 1, 2))
sketch8.addConstraint(Sketcher.Constraint("Tangent", 1, 1, 2, 2))
sketch8.addConstraint(Sketcher.Constraint("Tangent", 2, 1, 3, 2))
sketch8.addConstraint(Sketcher.Constraint("Tangent", 3, 1, 4, 2))
sketch8.addConstraint(Sketcher.Constraint("Tangent", 4, 1, 5, 2))
sketch8.addConstraint(Sketcher.Constraint("Tangent", 5, 1, 6, 2))
sketch8.addConstraint(Sketcher.Constraint("Tangent", 6, 1, 7, 2))
sketch8.addConstraint(Sketcher.Constraint("Tangent", 7, 1, 8, 2))
sketch8.addConstraint(Sketcher.Constraint("Tangent", 8, 1, 9, 2))
sketch8.addConstraint(Sketcher.Constraint("Tangent", 9, 1, 10, 2))
sketch8.addConstraint(Sketcher.Constraint("Tangent", 10, 1, 11, 2))
sketch8.addConstraint(Sketcher.Constraint("Tangent", 11, 1, 12, 2))
sketch8.addConstraint(Sketcher.Constraint("Tangent", 12, 1, 0, 2))
sketch8.addConstraint(Sketcher.Constraint("Coincident", 2, 3, 0, 3))
sketch8.addConstraint(Sketcher.Constraint("Coincident", 4, 3, 0, 3))
sketch8.addConstraint(Sketcher.Constraint("Coincident", 6, 3, 0, 3))
sketch8.addConstraint(Sketcher.Constraint("Coincident", 8, 3, 0, 3))
sketch8.addConstraint(Sketcher.Constraint("Coincident", 11, 3, 0, 3))
sketch8.addConstraint(Sketcher.Constraint("Symmetric", 3, 1, 4, 1, -2))
sketch8.addConstraint(Sketcher.Constraint("Horizontal", 12, 3, 0, 1))
sketch8.addConstraint(Sketcher.Constraint("Horizontal", 2, 1, 5, 1))
sketch8.addConstraint(Sketcher.Constraint("Horizontal", 1, 1, 6, 1))
sketch8.addConstraint(Sketcher.Constraint("Horizontal", 9, 1, 10, 1))
sketch8.addConstraint(Sketcher.Constraint("Horizontal", 8, 1, 11, 1))
sketch8.addConstraint(Sketcher.Constraint("Horizontal", 7, 1, 12, 1))
sketch8.addConstraint(Sketcher.Constraint("Vertical", 6, 1, 7, 1))
sketch8.addConstraint(Sketcher.Constraint("Vertical", 5, 1, 8, 1))
sketch8.addConstraint(Sketcher.Constraint("Vertical", 4, 1, 9, 1))
sketch8.addConstraint(Sketcher.Constraint("Radius", 0, 4.75))
sketch8.addConstraint(Sketcher.Constraint("DistanceY", 3, 1, -1, 1, 60.01))
sketch8.addConstraint(Sketcher.Constraint("DistanceY", 9, 1, -1, 1, 52.92))
sketch8.addConstraint(Sketcher.Constraint("DistanceY", 2, 1, -1, 1, 59.824309))
sketch8.addConstraint(Sketcher.Constraint("DistanceY", 1, 1, 6, 3, 3.162868))
pad8 = body.newObject("PartDesign::Pad", "Pad007")
pad8.Profile = sketch8
pad8.Type = "TwoLengths"
pad8.Length = 82
pad8.Length2 = 10
pad8.Reversed = True
doc.recompute()

fillet = body.newObject("PartDesign::Fillet", "Fillet")
fillet.Base = (pad8, edges_at(pad8, [(-3.452, 85.042, -53.203)]))
fillet.Radius = 2

doc.recompute()
